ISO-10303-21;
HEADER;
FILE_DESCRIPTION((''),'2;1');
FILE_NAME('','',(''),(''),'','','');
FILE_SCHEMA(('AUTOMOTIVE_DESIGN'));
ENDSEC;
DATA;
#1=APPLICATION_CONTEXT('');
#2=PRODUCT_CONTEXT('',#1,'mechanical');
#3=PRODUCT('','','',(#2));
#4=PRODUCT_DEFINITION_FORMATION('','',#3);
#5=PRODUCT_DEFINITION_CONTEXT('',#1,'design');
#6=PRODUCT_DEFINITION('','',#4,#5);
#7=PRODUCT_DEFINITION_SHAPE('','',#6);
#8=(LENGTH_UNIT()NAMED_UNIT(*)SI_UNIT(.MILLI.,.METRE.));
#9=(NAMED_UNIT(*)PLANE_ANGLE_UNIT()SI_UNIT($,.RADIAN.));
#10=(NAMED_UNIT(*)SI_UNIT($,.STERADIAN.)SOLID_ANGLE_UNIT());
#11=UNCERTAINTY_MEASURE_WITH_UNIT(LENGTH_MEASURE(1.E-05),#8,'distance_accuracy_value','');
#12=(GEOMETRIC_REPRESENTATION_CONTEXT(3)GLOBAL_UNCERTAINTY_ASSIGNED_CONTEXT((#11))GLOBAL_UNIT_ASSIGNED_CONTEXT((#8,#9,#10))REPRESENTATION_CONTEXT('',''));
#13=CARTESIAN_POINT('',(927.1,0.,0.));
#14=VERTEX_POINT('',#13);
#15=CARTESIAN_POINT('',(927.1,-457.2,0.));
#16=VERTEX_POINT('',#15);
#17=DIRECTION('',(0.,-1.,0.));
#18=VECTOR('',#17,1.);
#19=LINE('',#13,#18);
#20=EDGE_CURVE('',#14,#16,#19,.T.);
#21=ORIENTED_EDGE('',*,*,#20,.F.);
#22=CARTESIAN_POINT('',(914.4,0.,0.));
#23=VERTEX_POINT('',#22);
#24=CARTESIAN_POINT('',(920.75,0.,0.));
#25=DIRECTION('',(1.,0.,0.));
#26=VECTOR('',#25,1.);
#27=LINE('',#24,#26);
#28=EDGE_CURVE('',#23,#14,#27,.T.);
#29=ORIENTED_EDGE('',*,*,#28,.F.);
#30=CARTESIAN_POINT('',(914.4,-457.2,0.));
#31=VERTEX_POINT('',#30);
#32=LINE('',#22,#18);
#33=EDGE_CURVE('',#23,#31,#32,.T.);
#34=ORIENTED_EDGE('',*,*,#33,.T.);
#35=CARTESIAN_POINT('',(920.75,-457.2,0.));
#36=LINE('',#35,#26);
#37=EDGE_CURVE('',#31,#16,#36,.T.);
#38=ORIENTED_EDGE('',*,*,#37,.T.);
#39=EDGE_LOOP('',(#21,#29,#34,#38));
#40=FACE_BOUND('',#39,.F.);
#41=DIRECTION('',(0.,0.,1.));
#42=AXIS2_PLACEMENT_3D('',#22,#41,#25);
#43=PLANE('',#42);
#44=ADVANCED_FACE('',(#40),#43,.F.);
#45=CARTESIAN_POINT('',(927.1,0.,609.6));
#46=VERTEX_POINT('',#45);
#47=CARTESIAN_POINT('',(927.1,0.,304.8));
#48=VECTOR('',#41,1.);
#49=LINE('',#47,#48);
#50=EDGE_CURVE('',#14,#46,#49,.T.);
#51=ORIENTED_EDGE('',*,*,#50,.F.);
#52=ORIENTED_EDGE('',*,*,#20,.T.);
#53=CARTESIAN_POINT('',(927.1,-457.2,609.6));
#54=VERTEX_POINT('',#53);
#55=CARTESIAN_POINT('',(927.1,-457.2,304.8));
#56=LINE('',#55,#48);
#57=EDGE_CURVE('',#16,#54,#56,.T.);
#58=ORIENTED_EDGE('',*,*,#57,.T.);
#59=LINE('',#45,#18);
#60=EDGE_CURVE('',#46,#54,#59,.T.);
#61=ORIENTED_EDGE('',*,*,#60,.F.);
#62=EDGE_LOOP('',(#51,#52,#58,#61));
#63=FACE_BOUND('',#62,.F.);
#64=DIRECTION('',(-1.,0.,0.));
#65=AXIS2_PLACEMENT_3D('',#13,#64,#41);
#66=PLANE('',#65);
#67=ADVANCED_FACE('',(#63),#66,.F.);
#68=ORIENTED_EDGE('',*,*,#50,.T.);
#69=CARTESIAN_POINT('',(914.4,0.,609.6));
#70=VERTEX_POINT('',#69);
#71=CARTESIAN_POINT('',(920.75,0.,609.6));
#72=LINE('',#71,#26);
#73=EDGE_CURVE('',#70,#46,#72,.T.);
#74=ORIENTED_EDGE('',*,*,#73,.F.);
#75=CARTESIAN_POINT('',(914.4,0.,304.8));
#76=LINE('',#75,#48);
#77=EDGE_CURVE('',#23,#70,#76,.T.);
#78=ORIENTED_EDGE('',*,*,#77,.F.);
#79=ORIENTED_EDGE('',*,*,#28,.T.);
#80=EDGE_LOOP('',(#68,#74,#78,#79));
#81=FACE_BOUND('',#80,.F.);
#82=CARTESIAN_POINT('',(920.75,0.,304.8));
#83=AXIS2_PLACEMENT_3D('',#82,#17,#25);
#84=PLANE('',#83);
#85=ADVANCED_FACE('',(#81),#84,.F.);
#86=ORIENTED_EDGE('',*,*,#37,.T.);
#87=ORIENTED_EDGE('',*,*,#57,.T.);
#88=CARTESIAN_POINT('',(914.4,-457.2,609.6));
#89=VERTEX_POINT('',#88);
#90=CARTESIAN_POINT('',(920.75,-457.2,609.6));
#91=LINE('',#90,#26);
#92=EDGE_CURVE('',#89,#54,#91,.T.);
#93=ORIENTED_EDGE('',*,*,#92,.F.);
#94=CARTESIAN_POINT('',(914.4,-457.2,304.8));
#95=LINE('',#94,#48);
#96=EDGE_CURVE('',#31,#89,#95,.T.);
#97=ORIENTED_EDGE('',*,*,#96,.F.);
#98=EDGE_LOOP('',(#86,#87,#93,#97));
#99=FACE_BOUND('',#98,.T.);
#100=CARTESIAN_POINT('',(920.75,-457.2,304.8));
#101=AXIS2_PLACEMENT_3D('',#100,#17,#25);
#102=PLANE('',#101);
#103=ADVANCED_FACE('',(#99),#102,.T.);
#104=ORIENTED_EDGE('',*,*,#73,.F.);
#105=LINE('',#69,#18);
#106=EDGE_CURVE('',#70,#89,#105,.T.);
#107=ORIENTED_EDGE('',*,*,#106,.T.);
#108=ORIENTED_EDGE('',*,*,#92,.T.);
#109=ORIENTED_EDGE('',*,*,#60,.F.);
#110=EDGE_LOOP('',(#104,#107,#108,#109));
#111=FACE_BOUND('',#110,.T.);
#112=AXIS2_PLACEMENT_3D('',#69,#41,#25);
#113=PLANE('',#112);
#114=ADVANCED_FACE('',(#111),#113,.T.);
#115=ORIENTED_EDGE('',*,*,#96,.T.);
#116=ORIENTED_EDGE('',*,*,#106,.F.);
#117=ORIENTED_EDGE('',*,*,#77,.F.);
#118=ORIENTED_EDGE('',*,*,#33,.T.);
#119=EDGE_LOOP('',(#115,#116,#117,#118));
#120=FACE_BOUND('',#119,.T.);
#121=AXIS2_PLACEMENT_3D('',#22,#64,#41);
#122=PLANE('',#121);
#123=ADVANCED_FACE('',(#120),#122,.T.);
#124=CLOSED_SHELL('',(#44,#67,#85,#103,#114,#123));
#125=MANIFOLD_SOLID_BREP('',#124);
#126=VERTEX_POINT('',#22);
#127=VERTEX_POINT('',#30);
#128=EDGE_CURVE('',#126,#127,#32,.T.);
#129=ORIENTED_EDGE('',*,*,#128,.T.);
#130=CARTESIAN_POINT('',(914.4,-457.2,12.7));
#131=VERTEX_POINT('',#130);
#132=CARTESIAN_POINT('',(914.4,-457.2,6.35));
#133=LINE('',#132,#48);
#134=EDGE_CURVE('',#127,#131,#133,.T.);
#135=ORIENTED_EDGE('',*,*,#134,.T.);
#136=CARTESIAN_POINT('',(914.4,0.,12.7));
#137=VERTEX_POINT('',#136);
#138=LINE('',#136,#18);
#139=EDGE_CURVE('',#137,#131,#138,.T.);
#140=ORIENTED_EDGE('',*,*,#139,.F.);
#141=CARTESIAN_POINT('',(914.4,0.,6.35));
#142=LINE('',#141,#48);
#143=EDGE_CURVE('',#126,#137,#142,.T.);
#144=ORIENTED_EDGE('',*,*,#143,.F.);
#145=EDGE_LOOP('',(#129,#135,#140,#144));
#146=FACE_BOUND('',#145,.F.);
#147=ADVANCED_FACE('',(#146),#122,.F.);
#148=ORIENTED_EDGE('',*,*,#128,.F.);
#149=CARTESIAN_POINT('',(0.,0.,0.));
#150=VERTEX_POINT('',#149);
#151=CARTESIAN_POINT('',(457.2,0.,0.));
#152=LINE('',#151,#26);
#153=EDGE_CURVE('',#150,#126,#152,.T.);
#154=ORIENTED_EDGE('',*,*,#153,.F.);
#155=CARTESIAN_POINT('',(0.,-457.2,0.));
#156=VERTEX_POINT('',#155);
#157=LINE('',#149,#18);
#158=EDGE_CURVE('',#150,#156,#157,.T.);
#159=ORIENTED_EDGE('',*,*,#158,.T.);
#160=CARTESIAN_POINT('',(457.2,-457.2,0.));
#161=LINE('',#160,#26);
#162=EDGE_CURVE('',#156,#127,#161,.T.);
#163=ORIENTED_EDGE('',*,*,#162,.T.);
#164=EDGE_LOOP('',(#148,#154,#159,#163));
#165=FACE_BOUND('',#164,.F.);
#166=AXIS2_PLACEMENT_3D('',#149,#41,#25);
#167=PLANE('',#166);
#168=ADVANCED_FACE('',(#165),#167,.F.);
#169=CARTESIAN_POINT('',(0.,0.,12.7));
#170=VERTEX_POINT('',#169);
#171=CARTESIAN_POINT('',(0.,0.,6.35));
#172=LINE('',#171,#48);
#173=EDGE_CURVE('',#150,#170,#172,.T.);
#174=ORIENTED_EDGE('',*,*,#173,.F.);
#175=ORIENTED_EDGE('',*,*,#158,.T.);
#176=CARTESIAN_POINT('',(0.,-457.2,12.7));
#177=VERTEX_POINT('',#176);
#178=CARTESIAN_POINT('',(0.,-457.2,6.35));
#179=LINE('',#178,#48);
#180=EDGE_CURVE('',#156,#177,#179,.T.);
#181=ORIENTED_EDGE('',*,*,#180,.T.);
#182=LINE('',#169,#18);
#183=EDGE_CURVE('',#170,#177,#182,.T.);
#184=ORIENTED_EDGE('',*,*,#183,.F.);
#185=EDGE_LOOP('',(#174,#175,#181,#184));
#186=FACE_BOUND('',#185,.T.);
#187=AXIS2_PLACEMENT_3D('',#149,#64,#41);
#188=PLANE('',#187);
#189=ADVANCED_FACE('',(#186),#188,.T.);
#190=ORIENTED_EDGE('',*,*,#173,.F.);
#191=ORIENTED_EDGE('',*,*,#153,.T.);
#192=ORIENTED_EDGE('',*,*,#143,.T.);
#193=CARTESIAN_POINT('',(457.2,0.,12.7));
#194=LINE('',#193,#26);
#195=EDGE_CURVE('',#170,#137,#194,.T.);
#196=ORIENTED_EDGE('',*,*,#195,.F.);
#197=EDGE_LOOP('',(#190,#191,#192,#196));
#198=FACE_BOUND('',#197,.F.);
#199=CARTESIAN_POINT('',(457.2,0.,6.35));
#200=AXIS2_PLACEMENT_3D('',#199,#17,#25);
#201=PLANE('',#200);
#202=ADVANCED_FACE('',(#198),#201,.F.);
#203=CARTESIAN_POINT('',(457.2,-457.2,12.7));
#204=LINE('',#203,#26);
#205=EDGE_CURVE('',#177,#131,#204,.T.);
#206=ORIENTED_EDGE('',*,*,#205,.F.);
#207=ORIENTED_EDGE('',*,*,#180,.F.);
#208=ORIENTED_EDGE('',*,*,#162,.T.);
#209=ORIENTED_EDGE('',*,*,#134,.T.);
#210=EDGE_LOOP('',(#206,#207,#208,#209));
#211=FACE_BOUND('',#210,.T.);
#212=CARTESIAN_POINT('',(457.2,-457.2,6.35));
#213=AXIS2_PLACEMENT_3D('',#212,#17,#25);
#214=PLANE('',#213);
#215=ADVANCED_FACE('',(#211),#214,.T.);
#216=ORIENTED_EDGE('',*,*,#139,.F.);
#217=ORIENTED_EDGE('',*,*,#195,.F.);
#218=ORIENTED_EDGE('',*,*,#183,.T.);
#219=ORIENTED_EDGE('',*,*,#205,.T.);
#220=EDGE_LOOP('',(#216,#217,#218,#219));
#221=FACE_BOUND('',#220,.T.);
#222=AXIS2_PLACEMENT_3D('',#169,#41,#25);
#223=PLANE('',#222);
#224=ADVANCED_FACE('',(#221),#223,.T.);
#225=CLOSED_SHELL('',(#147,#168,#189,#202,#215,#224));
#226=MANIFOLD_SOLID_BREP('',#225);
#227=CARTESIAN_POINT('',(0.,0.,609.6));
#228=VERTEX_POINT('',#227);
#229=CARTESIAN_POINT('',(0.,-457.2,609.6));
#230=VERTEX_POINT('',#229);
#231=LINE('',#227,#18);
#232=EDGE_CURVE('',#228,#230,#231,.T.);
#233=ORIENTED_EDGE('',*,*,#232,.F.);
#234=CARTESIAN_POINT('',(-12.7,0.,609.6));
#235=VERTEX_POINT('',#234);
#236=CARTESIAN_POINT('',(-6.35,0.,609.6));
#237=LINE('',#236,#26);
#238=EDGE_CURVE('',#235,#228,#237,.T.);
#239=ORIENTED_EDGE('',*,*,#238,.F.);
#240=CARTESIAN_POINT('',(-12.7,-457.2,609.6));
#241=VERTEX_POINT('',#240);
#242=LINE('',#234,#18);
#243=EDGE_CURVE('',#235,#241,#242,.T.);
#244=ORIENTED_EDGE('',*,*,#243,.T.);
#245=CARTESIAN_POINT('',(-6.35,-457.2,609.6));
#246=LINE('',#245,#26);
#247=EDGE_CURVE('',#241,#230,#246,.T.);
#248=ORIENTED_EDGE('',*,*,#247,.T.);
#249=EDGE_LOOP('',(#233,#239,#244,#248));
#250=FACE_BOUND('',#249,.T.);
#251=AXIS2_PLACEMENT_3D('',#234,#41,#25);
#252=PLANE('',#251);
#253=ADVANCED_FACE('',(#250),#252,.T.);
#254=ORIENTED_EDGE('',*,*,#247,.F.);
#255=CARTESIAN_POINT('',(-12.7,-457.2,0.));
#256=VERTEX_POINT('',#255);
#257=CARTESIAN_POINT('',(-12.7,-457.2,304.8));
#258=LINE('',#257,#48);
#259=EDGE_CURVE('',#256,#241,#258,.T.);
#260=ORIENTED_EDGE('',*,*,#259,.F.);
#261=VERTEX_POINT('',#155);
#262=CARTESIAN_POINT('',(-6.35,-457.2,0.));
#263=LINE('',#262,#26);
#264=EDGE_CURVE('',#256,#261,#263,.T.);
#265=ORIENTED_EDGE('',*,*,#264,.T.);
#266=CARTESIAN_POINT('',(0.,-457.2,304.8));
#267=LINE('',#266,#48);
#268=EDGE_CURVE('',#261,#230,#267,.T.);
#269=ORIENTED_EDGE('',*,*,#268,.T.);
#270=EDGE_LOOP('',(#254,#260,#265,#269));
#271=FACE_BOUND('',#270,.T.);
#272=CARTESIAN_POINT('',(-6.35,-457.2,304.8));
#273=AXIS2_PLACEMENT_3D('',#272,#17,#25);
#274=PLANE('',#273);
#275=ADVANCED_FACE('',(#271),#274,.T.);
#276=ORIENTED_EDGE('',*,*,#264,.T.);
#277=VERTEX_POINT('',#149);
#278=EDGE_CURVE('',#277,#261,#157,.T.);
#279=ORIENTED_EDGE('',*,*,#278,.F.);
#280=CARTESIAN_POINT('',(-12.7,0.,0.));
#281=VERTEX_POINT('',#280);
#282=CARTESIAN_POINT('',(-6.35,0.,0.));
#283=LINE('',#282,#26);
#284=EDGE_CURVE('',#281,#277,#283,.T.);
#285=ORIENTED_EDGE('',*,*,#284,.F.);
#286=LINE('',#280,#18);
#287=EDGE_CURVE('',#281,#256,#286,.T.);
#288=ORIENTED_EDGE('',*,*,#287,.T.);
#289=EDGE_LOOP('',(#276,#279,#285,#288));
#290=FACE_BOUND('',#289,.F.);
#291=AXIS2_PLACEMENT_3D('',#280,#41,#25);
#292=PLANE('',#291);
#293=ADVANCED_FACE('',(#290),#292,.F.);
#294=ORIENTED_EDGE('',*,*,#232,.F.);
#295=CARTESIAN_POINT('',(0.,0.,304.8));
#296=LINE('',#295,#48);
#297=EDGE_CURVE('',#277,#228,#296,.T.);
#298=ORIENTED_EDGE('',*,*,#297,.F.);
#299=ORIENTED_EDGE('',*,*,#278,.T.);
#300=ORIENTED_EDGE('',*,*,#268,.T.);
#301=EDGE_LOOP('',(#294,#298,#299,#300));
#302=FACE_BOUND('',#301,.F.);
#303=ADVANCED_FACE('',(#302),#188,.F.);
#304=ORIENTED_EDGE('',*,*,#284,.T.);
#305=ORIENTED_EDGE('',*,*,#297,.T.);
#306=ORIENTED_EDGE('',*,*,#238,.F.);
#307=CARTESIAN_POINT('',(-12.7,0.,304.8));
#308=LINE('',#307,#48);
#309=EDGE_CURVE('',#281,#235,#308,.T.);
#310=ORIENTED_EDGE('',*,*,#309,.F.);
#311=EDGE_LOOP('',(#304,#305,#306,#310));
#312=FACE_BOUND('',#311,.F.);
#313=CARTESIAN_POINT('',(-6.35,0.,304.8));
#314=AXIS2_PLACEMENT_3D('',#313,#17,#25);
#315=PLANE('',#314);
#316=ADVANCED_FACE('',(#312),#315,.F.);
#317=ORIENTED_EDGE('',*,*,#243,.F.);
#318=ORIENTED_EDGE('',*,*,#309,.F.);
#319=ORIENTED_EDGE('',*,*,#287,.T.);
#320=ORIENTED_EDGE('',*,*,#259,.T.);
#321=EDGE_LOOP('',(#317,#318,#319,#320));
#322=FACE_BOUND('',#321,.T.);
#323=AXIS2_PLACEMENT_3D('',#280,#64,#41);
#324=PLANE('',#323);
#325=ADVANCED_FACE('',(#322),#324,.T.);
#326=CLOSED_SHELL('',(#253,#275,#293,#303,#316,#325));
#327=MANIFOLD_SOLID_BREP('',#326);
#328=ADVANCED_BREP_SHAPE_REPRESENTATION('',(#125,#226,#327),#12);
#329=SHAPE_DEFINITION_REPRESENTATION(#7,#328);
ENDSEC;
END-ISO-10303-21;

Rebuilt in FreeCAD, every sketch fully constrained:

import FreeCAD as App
import Part
import Sketcher

V = App.Vector
Q = App.Units.Quantity

doc = App.newDocument("Part")
body = doc.addObject("PartDesign::Body", "Body")

sketch1 = doc.addObject("Sketcher::SketchObject", "Sketch")
body.addObject(sketch1)
sketch1.AttachmentSupport = (doc.XZ_Plane, [""])
sketch1.MapMode = "FlatFace"
sketch1.addGeometry(Part.LineSegment(V(0, 13, 0), V(0, 0, 0)), False)
sketch1.addGeometry(Part.LineSegment(V(0, 0, 0), V(914, 0, 0)), False)
sketch1.addGeometry(Part.LineSegment(V(914, 0, 0), V(914, 13, 0)), False)
sketch1.addGeometry(Part.LineSegment(V(914, 13, 0), V(0, 13, 0)), False)
sketch1.addConstraint(Sketcher.Constraint("Coincident", 0, 2, 1, 1))
sketch1.addConstraint(Sketcher.Constraint("Coincident", 1, 2, 2, 1))
sketch1.addConstraint(Sketcher.Constraint("Coincident", 2, 2, 3, 1))
sketch1.addConstraint(Sketcher.Constraint("Coincident", 3, 2, 0, 1))
sketch1.addConstraint(Sketcher.Constraint("Vertical", 0))
sketch1.addConstraint(Sketcher.Constraint("Horizontal", 1))
sketch1.addConstraint(Sketcher.Constraint("Vertical", 2))
sketch1.addConstraint(Sketcher.Constraint("Horizontal", 3))
sketch1.addConstraint(Sketcher.Constraint("Coincident", 0, 2, -1, 1))
sketch1.addConstraint(Sketcher.Constraint("DistanceX", 1, 1, 1, 2, Q("36 in")))
sketch1.addConstraint(Sketcher.Constraint("DistanceY", 0, 2, 0, 1, Q("0.5 in")))
pad1 = doc.addObject("PartDesign::Pad", "Pad")
body.addObject(pad1)
pad1.Profile = sketch1
pad1.Length = Q("18 in")
body2 = doc.addObject("PartDesign::Body", "Body001")
body2.AllowCompound = True

sketch2 = doc.addObject("Sketcher::SketchObject", "Sketch001")
body2.addObject(sketch2)
sketch2.AttachmentSupport = (doc.getObject("XZ_Plane001"), [""])
sketch2.MapMode = "FlatFace"
sketch2.addGeometry(Part.LineSegment(V(-13, 610, 0), V(-13, 0, 0)), False)
sketch2.addGeometry(Part.LineSegment(V(-13, 0, 0), V(0, 0, 0)), False)
sketch2.addGeometry(Part.LineSegment(V(0, 0, 0), V(0, 610, 0)), False)
sketch2.addGeometry(Part.LineSegment(V(0, 610, 0), V(-13, 610, 0)), False)
sketch2.addGeometry(Part.LineSegment(V(914, 610, 0), V(914, 0, 0)), False)
sketch2.addGeometry(Part.LineSegment(V(914, 0, 0), V(927, 0, 0)), False)
sketch2.addGeometry(Part.LineSegment(V(927, 0, 0), V(927, 610, 0)), False)
sketch2.addGeometry(Part.LineSegment(V(927, 610, 0), V(914, 610, 0)), False)
sketch2.addConstraint(Sketcher.Constraint("Coincident", 0, 2, 1, 1))
sketch2.addConstraint(Sketcher.Constraint("Coincident", 1, 2, 2, 1))
sketch2.addConstraint(Sketcher.Constraint("Coincident", 2, 2, 3, 1))
sketch2.addConstraint(Sketcher.Constraint("Coincident", 3, 2, 0, 1))
sketch2.addConstraint(Sketcher.Constraint("Coincident", 4, 2, 5, 1))
sketch2.addConstraint(Sketcher.Constraint("Coincident", 5, 2, 6, 1))
sketch2.addConstraint(Sketcher.Constraint("Coincident", 6, 2, 7, 1))
sketch2.addConstraint(Sketcher.Constraint("Coincident", 7, 2, 4, 1))
sketch2.addConstraint(Sketcher.Constraint("Vertical", 0))
sketch2.addConstraint(Sketcher.Constraint("Horizontal", 1))
sketch2.addConstraint(Sketcher.Constraint("Vertical", 2))
sketch2.addConstraint(Sketcher.Constraint("Horizontal", 3))
sketch2.addConstraint(Sketcher.Constraint("Vertical", 4))
sketch2.addConstraint(Sketcher.Constraint("Horizontal", 5))
sketch2.addConstraint(Sketcher.Constraint("Vertical", 6))
sketch2.addConstraint(Sketcher.Constraint("Horizontal", 7))
sketch2.addConstraint(Sketcher.Constraint("Coincident", 1, 2, -1, 1))
sketch2.addConstraint(Sketcher.Constraint("PointOnObject", 4, 2, -1))
sketch2.addConstraint(Sketcher.Constraint("Horizontal", 3, 2, 6, 2))
sketch2.addConstraint(Sketcher.Constraint("Equal", 3, 5))
sketch2.addConstraint(Sketcher.Constraint("DistanceY", 0, 2, 0, 1, Q("24 in")))
sketch2.addConstraint(Sketcher.Constraint("DistanceX", 1, 1, 1, 2, Q("0.5 in")))
sketch2.addConstraint(Sketcher.Constraint("DistanceX", -1, 1, 4, 2, Q("36 in")))
pad2 = doc.addObject("PartDesign::Pad", "Pad001")
body2.addObject(pad2)
pad2.Profile = sketch2
pad2.Length = Q("18 in")

doc.recompute()
